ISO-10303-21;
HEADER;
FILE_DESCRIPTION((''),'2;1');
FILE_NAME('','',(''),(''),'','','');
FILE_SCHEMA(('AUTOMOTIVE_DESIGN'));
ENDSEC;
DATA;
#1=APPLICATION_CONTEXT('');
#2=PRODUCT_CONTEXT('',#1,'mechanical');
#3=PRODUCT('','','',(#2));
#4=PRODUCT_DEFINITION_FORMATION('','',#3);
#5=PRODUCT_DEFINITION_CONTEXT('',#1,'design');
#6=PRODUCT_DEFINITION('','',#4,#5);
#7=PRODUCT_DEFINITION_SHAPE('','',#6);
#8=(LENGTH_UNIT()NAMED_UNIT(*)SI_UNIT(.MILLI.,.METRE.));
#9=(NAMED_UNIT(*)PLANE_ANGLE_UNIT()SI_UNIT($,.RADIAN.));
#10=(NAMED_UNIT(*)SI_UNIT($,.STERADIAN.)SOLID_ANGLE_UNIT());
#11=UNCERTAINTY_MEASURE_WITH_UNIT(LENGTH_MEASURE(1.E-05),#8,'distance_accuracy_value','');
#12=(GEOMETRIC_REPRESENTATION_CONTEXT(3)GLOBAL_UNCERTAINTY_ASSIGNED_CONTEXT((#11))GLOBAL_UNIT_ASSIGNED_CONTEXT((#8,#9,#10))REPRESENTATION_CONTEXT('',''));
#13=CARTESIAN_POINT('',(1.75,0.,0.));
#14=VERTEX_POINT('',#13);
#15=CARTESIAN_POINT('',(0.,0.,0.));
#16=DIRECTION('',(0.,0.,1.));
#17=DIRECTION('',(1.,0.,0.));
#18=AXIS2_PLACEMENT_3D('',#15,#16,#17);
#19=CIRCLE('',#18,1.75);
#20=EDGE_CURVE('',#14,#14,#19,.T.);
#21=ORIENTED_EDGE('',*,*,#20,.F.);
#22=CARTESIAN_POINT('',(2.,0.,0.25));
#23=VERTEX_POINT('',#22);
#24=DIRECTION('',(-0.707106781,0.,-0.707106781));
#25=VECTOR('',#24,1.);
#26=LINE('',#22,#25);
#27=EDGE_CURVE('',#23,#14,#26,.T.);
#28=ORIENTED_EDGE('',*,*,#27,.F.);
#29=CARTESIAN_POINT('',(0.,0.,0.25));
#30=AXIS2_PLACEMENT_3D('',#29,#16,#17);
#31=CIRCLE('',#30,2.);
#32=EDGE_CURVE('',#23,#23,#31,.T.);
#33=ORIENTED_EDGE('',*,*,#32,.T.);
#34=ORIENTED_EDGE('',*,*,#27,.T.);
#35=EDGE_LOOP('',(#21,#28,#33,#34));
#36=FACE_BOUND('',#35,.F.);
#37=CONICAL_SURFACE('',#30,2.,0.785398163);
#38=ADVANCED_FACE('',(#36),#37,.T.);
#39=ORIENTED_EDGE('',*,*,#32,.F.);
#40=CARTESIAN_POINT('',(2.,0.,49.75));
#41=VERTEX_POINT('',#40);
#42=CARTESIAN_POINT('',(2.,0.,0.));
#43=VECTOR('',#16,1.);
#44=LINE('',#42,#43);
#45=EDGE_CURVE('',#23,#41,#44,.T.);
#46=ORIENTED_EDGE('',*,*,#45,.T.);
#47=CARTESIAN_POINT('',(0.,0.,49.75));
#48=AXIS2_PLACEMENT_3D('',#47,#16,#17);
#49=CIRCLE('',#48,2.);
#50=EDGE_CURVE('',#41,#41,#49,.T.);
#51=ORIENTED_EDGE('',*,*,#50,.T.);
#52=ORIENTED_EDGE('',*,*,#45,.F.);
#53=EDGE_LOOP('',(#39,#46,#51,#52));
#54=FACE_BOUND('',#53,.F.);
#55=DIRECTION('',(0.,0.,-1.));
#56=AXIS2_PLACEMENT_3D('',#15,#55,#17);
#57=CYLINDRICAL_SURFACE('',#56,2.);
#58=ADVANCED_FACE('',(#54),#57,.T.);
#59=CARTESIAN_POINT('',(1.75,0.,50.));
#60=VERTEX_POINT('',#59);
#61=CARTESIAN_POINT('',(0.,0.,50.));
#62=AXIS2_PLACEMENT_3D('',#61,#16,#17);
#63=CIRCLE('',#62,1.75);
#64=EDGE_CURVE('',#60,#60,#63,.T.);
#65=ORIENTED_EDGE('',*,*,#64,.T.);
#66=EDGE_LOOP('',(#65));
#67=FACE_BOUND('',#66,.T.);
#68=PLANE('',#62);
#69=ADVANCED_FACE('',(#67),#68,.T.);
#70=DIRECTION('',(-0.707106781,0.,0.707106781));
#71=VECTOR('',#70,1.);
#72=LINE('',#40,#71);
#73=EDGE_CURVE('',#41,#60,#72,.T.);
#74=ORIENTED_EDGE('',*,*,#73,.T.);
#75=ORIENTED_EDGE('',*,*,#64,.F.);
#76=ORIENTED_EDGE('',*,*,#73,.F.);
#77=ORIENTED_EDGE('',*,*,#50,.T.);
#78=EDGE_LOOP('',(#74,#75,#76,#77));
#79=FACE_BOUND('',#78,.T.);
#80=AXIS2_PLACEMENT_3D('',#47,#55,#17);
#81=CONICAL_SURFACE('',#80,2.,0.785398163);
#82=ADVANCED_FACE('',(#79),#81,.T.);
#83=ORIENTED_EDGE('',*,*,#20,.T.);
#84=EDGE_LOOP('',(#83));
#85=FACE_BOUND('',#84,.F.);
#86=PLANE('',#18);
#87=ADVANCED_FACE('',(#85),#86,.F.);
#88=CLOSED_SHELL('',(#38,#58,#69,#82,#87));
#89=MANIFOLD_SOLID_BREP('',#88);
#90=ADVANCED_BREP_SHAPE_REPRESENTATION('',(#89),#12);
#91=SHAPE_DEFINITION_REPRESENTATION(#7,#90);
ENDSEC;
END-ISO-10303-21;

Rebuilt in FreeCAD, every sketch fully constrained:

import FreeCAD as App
import Part
import Sketcher

V = App.Vector
Q = App.Units.Quantity


def edges_at(feature, points):
    """Names of the edges that pass closest to the given points."""
    edges = feature.Shape.Edges
    near = lambda p: min(range(len(edges)), key=lambda i: edges[i].distToShape(Part.Vertex(*p))[0])
    return sorted({f"Edge{near(p) + 1}" for p in points})

doc = App.newDocument("Part")
body = doc.addObject("PartDesign::Body", "Body")

# Sketch on XY plane
sketch1 = doc.addObject("Sketcher::SketchObject", "Sketch")
body.addObject(sketch1)
sketch1.AttachmentSupport = (doc.XY_Plane, [""])
sketch1.MapMode = "FlatFace"
sketch1.addGeometry(Part.Circle(V(0, 0, 0), V(0, 0, 1), 2), False)
sketch1.addConstraint([
    Sketcher.Constraint("Coincident", 0, 3, -1, 1),
    Sketcher.Constraint("Diameter", 0, Q("4 mm")),
])
pad1 = doc.addObject("PartDesign::Pad", "Pad")
body.addObject(pad1)
pad1.Profile = sketch1
pad1.Length = 50
doc.recompute()

chamfer = doc.addObject("PartDesign::Chamfer", "Chamfer")
body.addObject(chamfer)
chamfer.Base = (pad1, edges_at(pad1, [(-2, 0, 0), (-2, 0, 50)]))
chamfer.Size = 0.25

doc.recompute()
